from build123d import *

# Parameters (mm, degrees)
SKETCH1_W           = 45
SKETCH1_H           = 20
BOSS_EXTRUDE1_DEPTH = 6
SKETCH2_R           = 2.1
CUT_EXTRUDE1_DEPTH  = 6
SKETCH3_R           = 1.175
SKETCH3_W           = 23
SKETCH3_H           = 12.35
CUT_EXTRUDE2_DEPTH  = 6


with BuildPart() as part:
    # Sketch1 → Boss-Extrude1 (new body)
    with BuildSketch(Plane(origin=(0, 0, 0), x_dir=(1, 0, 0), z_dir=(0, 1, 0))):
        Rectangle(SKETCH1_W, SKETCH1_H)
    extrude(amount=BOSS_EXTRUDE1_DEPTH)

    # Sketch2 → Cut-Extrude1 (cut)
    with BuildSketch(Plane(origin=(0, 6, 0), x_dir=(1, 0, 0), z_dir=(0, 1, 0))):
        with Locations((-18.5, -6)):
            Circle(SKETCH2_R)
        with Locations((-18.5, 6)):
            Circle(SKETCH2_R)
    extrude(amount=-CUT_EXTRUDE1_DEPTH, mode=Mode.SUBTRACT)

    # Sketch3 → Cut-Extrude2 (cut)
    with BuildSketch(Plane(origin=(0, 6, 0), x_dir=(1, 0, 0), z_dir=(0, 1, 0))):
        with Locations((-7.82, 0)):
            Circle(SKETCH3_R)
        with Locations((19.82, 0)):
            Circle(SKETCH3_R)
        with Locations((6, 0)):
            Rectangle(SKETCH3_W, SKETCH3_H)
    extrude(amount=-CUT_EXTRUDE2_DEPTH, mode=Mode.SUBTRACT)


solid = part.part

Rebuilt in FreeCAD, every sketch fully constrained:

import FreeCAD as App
import Part
import Sketcher
from FreeCAD import Vector

doc = App.newDocument("Part")
params = doc.addObject("Spreadsheet::Sheet", "Params")
for row, (alias, value) in enumerate([
    ("sketch1_width", "45 mm"),
    ("sketch1_height", "20 mm"),
    ("pad1_length", "6 mm"),
    ("sketch2_diameter", "4.2 mm"),
    ("pocket1_length", "6 mm"),
    ("sketch3_diameter", "2.35 mm"),
    ("sketch3_width", "23 mm"),
    ("sketch3_height", "12.35 mm"),
    ("pocket2_length", "6 mm"),
], start=1):
    params.set(f"A{row}", alias)
    params.set(f"B{row}", "=" + value)
    params.setAlias(f"B{row}", alias)

body = doc.addObject("PartDesign::Body", "Body")

sketch1 = body.newObject("Sketcher::SketchObject", "Sketch")
sketch1.AttachmentSupport = (doc.getObject("XZ_Plane"), [""])
sketch1.MapMode = "FlatFace"
sketch1.addGeometry(Part.LineSegment(Vector(-22, -10, 0), Vector(-22, 10, 0)), False)
sketch1.addGeometry(Part.LineSegment(Vector(-22, 10, 0), Vector(22, 10, 0)), False)
sketch1.addGeometry(Part.LineSegment(Vector(22, 10, 0), Vector(22, -10, 0)), False)
sketch1.addGeometry(Part.LineSegment(Vector(22, -10, 0), Vector(-22, -10, 0)), False)
sketch1.addConstraint(Sketcher.Constraint("Coincident", 0, 2, 1, 1))
sketch1.addConstraint(Sketcher.Constraint("Coincident", 1, 2, 2, 1))
sketch1.addConstraint(Sketcher.Constraint("Coincident", 2, 2, 3, 1))
sketch1.addConstraint(Sketcher.Constraint("Coincident", 3, 2, 0, 1))
sketch1.addConstraint(Sketcher.Constraint("Vertical", 0))
sketch1.addConstraint(Sketcher.Constraint("Horizontal", 1))
sketch1.addConstraint(Sketcher.Constraint("Vertical", 2))
sketch1.addConstraint(Sketcher.Constraint("Horizontal", 3))
sketch1.addConstraint(Sketcher.Constraint("Symmetric", 0, 2, 2, 2, -1, 1))
sketch1.addConstraint(Sketcher.Constraint("DistanceX", 1, 1, 1, 2, 45.0))
sketch1.addConstraint(Sketcher.Constraint("DistanceY", 0, 1, 0, 2, 20.0))
sketch1.setExpression("Constraints[9]", "Params.sketch1_width")
sketch1.setExpression("Constraints[10]", "Params.sketch1_height")
pad1 = body.newObject("PartDesign::Pad", "Pad")
pad1.Profile = sketch1
pad1.setExpression("Length", "Params.pad1_length")
pad1.Reversed = True

sketch2 = body.newObject("Sketcher::SketchObject", "Sketch001")
sketch2.AttachmentSupport = (doc.getObject("XZ_Plane"), [""])
sketch2.MapMode = "FlatFace"
sketch2.AttachmentOffset = App.Placement(Vector(0, 0, -6), App.Rotation())
sketch2.addGeometry(Part.Circle(Vector(-18.5, 6, 0), Vector(0, 0, 1), 2.1), False)
sketch2.addGeometry(Part.Circle(Vector(-18.5, -6, 0), Vector(0, 0, 1), 2.1), False)
sketch2.addConstraint(Sketcher.Constraint("Equal", 0, 1))
sketch2.addConstraint(Sketcher.Constraint("Symmetric", 0, 3, 1, 3, -1))
sketch2.addConstraint(Sketcher.Constraint("Diameter", 0, 4.2))
sketch2.addConstraint(Sketcher.Constraint("DistanceY", -1, 1, 0, 3, 6.0))
sketch2.addConstraint(Sketcher.Constraint("DistanceX", 0, 3, -1, 1, 18.5))
sketch2.setExpression("Constraints[2]", "Params.sketch2_diameter")
pocket1 = body.newObject("PartDesign::Pocket", "Pocket")
pocket1.Profile = sketch2
pocket1.setExpression("Length", "Params.pocket1_length")
pocket1.Reversed = True

sketch3 = body.newObject("Sketcher::SketchObject", "Sketch002")
sketch3.AttachmentSupport = (doc.getObject("XZ_Plane"), [""])
sketch3.MapMode = "FlatFace"
sketch3.AttachmentOffset = App.Placement(Vector(0, 0, -6), App.Rotation())
sketch3.addGeometry(Part.Circle(Vector(-7.8, 0, 0), Vector(0, 0, 1), 1.2), False)
sketch3.addGeometry(Part.Circle(Vector(19.8, 0, 0), Vector(0, 0, 1), 1.2), False)
sketch3.addGeometry(Part.LineSegment(Vector(-5.5, -6.2, 0), Vector(-5.5, 6.2, 0)), False)
sketch3.addGeometry(Part.LineSegment(Vector(-5.5, 6.2, 0), Vector(17.5, 6.2, 0)), False)
sketch3.addGeometry(Part.LineSegment(Vector(17.5, 6.2, 0), Vector(17.5, -6.2, 0)), False)
sketch3.addGeometry(Part.LineSegment(Vector(17.5, -6.2, 0), Vector(-5.5, -6.2, 0)), False)
sketch3.addConstraint(Sketcher.Constraint("Coincident", 2, 2, 3, 1))
sketch3.addConstraint(Sketcher.Constraint("Coincident", 3, 2, 4, 1))
sketch3.addConstraint(Sketcher.Constraint("Coincident", 4, 2, 5, 1))
sketch3.addConstraint(Sketcher.Constraint("Coincident", 5, 2, 2, 1))
sketch3.addConstraint(Sketcher.Constraint("Vertical", 2))
sketch3.addConstraint(Sketcher.Constraint("Horizontal", 3))
sketch3.addConstraint(Sketcher.Constraint("Vertical", 4))
sketch3.addConstraint(Sketcher.Constraint("Horizontal", 5))
sketch3.addConstraint(Sketcher.Constraint("Equal", 0, 1))
sketch3.addConstraint(Sketcher.Constraint("PointOnObject", 0, 3, -1))
sketch3.addConstraint(Sketcher.Constraint("PointOnObject", 1, 3, -1))
sketch3.addConstraint(Sketcher.Constraint("Diameter", 0, 2.35))
sketch3.addConstraint(Sketcher.Constraint("DistanceX", 3, 1, 3, 2, 23.0))
sketch3.addConstraint(Sketcher.Constraint("DistanceY", 2, 1, 2, 2, 12.35))
sketch3.addConstraint(Sketcher.Constraint("DistanceX", 2, 2, -1, 1, 5.5))
sketch3.addConstraint(Sketcher.Constraint("DistanceX", 0, 3, -1, 1, 7.82))
sketch3.addConstraint(Sketcher.Constraint("DistanceX", -1, 1, 1, 3, 19.82))
sketch3.addConstraint(Sketcher.Constraint("DistanceY", -1, 1, 2, 2, 6.175))
sketch3.setExpression("Constraints[11]", "Params.sketch3_diameter")
sketch3.setExpression("Constraints[12]", "Params.sketch3_width")
sketch3.setExpression("Constraints[13]", "Params.sketch3_height")
pocket2 = body.newObject("PartDesign::Pocket", "Pocket001")
pocket2.Profile = sketch3
pocket2.setExpression("Length", "Params.pocket2_length")
pocket2.Reversed = True

doc.recompute()
